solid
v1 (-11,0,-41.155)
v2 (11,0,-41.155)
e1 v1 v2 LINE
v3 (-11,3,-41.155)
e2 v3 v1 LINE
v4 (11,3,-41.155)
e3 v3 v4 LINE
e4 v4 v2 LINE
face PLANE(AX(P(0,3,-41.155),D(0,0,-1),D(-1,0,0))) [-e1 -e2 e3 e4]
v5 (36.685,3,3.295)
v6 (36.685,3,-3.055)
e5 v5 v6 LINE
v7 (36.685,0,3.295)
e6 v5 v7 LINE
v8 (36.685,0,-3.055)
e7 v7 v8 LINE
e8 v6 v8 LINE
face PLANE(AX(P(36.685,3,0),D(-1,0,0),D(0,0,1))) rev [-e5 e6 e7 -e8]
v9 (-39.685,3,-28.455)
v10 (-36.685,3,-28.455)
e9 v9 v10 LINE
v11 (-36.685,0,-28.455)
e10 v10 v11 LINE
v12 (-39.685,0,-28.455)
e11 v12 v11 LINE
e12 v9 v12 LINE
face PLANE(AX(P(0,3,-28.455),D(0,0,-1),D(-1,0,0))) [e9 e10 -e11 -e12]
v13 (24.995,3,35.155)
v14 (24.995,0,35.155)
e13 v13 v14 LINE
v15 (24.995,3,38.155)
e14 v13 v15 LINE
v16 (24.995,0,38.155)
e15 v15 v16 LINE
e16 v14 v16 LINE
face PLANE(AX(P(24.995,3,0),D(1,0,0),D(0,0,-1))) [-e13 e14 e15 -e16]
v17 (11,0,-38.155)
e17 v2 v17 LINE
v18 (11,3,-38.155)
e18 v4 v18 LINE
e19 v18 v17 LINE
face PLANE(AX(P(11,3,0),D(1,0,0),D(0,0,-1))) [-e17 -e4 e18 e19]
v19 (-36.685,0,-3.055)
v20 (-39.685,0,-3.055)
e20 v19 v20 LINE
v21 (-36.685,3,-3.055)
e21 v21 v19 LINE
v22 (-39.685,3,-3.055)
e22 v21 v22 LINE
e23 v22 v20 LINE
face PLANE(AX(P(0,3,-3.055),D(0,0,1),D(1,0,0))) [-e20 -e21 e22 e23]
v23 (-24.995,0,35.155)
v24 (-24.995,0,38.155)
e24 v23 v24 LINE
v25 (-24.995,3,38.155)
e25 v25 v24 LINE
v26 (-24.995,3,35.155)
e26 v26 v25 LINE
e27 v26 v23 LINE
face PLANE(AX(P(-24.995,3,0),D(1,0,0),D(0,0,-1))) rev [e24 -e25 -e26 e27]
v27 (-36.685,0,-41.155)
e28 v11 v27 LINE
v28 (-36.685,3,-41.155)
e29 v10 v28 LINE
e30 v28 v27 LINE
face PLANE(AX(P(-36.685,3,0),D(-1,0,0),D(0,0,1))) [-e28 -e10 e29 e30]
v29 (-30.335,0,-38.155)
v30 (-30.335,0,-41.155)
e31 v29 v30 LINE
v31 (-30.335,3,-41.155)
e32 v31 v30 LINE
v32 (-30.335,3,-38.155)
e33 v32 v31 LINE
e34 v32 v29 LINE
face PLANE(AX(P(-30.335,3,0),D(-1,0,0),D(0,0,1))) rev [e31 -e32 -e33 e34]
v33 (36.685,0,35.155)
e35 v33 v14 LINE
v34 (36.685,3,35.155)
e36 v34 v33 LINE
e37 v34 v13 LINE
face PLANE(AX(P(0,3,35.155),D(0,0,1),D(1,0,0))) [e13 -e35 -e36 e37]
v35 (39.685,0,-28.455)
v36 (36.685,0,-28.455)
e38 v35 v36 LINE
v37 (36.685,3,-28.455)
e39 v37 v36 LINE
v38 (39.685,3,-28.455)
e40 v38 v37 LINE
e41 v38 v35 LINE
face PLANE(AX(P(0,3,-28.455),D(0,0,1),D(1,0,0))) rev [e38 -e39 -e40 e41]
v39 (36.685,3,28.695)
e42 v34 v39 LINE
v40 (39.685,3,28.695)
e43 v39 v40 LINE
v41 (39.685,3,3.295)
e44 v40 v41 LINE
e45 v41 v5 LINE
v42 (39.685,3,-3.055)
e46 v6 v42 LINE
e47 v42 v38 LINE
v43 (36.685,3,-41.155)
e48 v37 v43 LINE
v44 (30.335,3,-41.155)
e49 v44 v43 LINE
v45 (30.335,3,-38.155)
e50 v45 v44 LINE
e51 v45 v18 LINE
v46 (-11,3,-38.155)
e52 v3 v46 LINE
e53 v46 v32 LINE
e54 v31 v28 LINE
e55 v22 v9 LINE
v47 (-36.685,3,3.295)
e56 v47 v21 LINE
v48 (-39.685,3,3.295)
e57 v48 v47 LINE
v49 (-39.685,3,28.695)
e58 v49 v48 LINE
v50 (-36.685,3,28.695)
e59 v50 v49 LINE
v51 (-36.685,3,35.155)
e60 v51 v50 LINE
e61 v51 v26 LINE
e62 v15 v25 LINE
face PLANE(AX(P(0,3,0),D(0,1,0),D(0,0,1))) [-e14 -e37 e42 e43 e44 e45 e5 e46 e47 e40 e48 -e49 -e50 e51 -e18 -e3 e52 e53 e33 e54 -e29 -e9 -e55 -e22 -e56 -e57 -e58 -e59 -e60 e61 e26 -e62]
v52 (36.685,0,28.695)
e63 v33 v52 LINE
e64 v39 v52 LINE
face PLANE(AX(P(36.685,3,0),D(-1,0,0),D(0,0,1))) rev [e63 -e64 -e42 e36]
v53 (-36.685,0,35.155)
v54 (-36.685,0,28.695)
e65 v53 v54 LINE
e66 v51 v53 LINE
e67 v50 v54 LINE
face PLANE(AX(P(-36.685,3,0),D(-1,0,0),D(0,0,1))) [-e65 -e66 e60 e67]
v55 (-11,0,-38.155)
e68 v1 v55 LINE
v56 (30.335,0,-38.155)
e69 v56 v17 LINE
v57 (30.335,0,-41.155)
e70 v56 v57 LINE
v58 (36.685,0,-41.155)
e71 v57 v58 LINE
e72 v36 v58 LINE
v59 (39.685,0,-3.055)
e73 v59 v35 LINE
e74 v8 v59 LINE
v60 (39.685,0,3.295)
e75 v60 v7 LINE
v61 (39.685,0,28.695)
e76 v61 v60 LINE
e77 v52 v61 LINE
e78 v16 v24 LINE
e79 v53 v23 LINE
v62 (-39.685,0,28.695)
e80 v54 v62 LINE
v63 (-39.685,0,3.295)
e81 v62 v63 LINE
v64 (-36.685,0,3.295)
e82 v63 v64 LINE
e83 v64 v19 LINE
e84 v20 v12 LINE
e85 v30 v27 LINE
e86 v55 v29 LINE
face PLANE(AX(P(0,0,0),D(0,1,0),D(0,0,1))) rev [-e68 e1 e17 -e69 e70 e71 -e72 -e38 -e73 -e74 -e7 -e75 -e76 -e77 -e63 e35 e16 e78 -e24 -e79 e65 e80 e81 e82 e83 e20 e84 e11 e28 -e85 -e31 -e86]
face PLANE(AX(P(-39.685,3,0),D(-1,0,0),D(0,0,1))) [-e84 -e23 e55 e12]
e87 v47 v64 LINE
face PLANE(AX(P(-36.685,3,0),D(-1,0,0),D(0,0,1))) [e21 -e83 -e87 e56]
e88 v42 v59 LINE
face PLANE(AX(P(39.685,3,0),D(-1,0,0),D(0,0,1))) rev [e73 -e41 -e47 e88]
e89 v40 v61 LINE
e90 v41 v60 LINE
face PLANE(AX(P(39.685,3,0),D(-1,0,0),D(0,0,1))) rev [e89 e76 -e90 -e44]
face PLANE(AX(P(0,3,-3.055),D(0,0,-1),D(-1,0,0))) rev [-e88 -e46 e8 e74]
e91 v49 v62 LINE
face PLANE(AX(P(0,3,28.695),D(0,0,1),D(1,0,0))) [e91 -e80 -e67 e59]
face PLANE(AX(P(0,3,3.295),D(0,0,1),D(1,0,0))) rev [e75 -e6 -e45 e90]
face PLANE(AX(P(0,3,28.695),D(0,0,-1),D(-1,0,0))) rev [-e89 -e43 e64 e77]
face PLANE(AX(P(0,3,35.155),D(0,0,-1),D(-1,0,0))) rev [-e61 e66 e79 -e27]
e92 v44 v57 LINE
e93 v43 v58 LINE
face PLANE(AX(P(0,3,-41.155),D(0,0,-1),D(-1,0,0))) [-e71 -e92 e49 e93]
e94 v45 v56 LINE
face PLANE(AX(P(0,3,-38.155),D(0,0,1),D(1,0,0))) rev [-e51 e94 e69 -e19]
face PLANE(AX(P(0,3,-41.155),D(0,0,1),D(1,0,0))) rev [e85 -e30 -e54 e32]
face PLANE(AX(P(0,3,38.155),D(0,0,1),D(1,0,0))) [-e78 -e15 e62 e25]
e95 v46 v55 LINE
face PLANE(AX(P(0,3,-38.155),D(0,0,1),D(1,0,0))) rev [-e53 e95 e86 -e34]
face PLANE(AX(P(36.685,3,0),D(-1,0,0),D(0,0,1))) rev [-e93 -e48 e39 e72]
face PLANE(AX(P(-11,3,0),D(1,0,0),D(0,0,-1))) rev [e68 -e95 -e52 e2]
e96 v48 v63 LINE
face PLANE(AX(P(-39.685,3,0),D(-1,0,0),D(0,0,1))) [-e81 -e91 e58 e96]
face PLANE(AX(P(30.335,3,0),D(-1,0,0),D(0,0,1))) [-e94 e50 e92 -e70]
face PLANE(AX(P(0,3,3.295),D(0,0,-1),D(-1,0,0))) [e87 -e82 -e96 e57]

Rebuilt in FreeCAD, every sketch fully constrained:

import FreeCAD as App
import Part
import Sketcher

V = App.Vector
Q = App.Units.Quantity

doc = App.newDocument("Part")
body = doc.addObject("PartDesign::Body", "Body")

sketch1 = body.newObject("Sketcher::SketchObject", "Sketch")
sketch1.AttachmentSupport = (doc.getObject("XZ_Plane"), [""])
sketch1.MapMode = "FlatFace"
sketch1.addGeometry([
    Part.LineSegment(V(-24.995, 38.155, 0), V(24.995, 38.155, 0)),
    Part.LineSegment(V(24.995, 38.155, 0), V(24.995, 35.155, 0)),
    Part.LineSegment(V(24.995, 35.155, 0), V(36.685, 35.155, 0)),
    Part.LineSegment(V(36.685, 35.155, 0), V(36.685, 28.695, 0)),
    Part.LineSegment(V(36.685, 28.695, 0), V(39.685, 28.695, 0)),
    Part.LineSegment(V(39.685, 28.695, 0), V(39.685, 3.295, 0)),
    Part.LineSegment(V(39.685, 3.295, 0), V(36.685, 3.295, 0)),
    Part.LineSegment(V(36.685, 3.295, 0), V(36.685, -3.055, 0)),
    Part.LineSegment(V(36.685, -3.055, 0), V(39.685, -3.055, 0)),
    Part.LineSegment(V(39.685, -3.055, 0), V(39.685, -28.455, 0)),
    Part.LineSegment(V(39.685, -28.455, 0), V(36.685, -28.455, 0)),
    Part.LineSegment(V(36.685, -28.455, 0), V(36.685, -41.155, 0)),
    Part.LineSegment(V(36.685, -41.155, 0), V(30.335, -41.155, 0)),
    Part.LineSegment(V(30.335, -41.155, 0), V(30.335, -38.155, 0)),
    Part.LineSegment(V(30.335, -38.155, 0), V(11, -38.155, 0)),
    Part.LineSegment(V(11, -38.155, 0), V(11, -41.155, 0)),
    Part.LineSegment(V(11, -41.155, 0), V(-11, -41.155, 0)),
    Part.LineSegment(V(-11, -41.155, 0), V(-11, -38.155, 0)),
    Part.LineSegment(V(-11, -38.155, 0), V(-30.335, -38.155, 0)),
    Part.LineSegment(V(-30.335, -38.155, 0), V(-30.335, -41.155, 0)),
    Part.LineSegment(V(-30.335, -41.155, 0), V(-36.685, -41.155, 0)),
    Part.LineSegment(V(-36.685, -41.155, 0), V(-36.685, -28.455, 0)),
    Part.LineSegment(V(-36.685, -28.455, 0), V(-39.685, -28.455, 0)),
    Part.LineSegment(V(-39.685, -28.455, 0), V(-39.685, -3.055, 0)),
    Part.LineSegment(V(-39.685, -3.055, 0), V(-36.685, -3.055, 0)),
    Part.LineSegment(V(-36.685, -3.055, 0), V(-36.685, 3.295, 0)),
    Part.LineSegment(V(-36.685, 3.295, 0), V(-39.685, 3.295, 0)),
    Part.LineSegment(V(-39.685, 3.295, 0), V(-39.685, 28.695, 0)),
    Part.LineSegment(V(-39.685, 28.695, 0), V(-36.685, 28.695, 0)),
    Part.LineSegment(V(-36.685, 28.695, 0), V(-36.685, 35.155, 0)),
    Part.LineSegment(V(-36.685, 35.155, 0), V(-24.995, 35.155, 0)),
    Part.LineSegment(V(-24.995, 35.155, 0), V(-24.995, 38.155, 0)),
], False)
sketch1.addConstraint([
    Sketcher.Constraint("Coincident", 0, 2, 1, 1),
    Sketcher.Constraint("Coincident", 1, 2, 2, 1),
    Sketcher.Constraint("Coincident", 2, 2, 3, 1),
    Sketcher.Constraint("Coincident", 3, 2, 4, 1),
    Sketcher.Constraint("Coincident", 4, 2, 5, 1),
    Sketcher.Constraint("Coincident", 5, 2, 6, 1),
    Sketcher.Constraint("Coincident", 6, 2, 7, 1),
    Sketcher.Constraint("Coincident", 7, 2, 8, 1),
    Sketcher.Constraint("Coincident", 8, 2, 9, 1),
    Sketcher.Constraint("Coincident", 9, 2, 10, 1),
    Sketcher.Constraint("Coincident", 10, 2, 11, 1),
    Sketcher.Constraint("Coincident", 11, 2, 12, 1),
    Sketcher.Constraint("Coincident", 12, 2, 13, 1),
    Sketcher.Constraint("Coincident", 13, 2, 14, 1),
    Sketcher.Constraint("Coincident", 14, 2, 15, 1),
    Sketcher.Constraint("Coincident", 15, 2, 16, 1),
    Sketcher.Constraint("Coincident", 16, 2, 17, 1),
    Sketcher.Constraint("Coincident", 17, 2, 18, 1),
    Sketcher.Constraint("Coincident", 18, 2, 19, 1),
    Sketcher.Constraint("Coincident", 19, 2, 20, 1),
    Sketcher.Constraint("Coincident", 20, 2, 21, 1),
    Sketcher.Constraint("Coincident", 21, 2, 22, 1),
    Sketcher.Constraint("Coincident", 22, 2, 23, 1),
    Sketcher.Constraint("Coincident", 23, 2, 24, 1),
    Sketcher.Constraint("Coincident", 24, 2, 25, 1),
    Sketcher.Constraint("Coincident", 25, 2, 26, 1),
    Sketcher.Constraint("Coincident", 26, 2, 27, 1),
    Sketcher.Constraint("Coincident", 27, 2, 28, 1),
    Sketcher.Constraint("Coincident", 28, 2, 29, 1),
    Sketcher.Constraint("Coincident", 29, 2, 30, 1),
    Sketcher.Constraint("Coincident", 30, 2, 31, 1),
    Sketcher.Constraint("Coincident", 31, 2, 0, 1),
    Sketcher.Constraint("Horizontal", 0),
    Sketcher.Constraint("Vertical", 1),
    Sketcher.Constraint("Horizontal", 2),
    Sketcher.Constraint("Vertical", 3),
    Sketcher.Constraint("Horizontal", 4),
    Sketcher.Constraint("Vertical", 5),
    Sketcher.Constraint("Horizontal", 6),
    Sketcher.Constraint("Vertical", 7),
    Sketcher.Constraint("Horizontal", 8),
    Sketcher.Constraint("Vertical", 9),
    Sketcher.Constraint("Horizontal", 10),
    Sketcher.Constraint("Vertical", 11),
    Sketcher.Constraint("Horizontal", 12),
    Sketcher.Constraint("Vertical", 13),
    Sketcher.Constraint("Horizontal", 14),
    Sketcher.Constraint("Vertical", 15),
    Sketcher.Constraint("Horizontal", 16),
    Sketcher.Constraint("Vertical", 17),
    Sketcher.Constraint("Horizontal", 18),
    Sketcher.Constraint("Vertical", 19),
    Sketcher.Constraint("Horizontal", 20),
    Sketcher.Constraint("Vertical", 21),
    Sketcher.Constraint("Horizontal", 22),
    Sketcher.Constraint("Vertical", 23),
    Sketcher.Constraint("Horizontal", 24),
    Sketcher.Constraint("Vertical", 25),
    Sketcher.Constraint("Horizontal", 26),
    Sketcher.Constraint("Vertical", 27),
    Sketcher.Constraint("Horizontal", 28),
    Sketcher.Constraint("Vertical", 29),
    Sketcher.Constraint("Horizontal", 30),
    Sketcher.Constraint("Vertical", 31),
    Sketcher.Constraint("Symmetric", 14, 2, 17, 2, -2),
    Sketcher.Constraint("Symmetric", 12, 2, 19, 2, -2),
    Sketcher.Constraint("Symmetric", 10, 2, 21, 2, -2),
    Sketcher.Constraint("Symmetric", 8, 2, 23, 2, -2),
    Sketcher.Constraint("Symmetric", 6, 2, 25, 2, -2),
    Sketcher.Constraint("Symmetric", 4, 2, 27, 2, -2),
    Sketcher.Constraint("Symmetric", 2, 2, 29, 2, -2),
    Sketcher.Constraint("Horizontal", 12, 2, 15, 2),
    Sketcher.Constraint("Vertical", 3, 2, 6, 2),
    Sketcher.Constraint("Vertical", 5, 2, 8, 2),
    Sketcher.Constraint("Vertical", 7, 2, 10, 2),
    Sketcher.Constraint("Equal", 2, 30),
    Sketcher.Constraint("Equal", 28, 1),
    Sketcher.Constraint("Equal", 20, 7),
    Sketcher.Constraint("Equal", 5, 9),
    Sketcher.Constraint("Equal", 1, 13),
    Sketcher.Constraint("DistanceY", 5, 2, 5, 1, Q("1 in")),
    Sketcher.Constraint("DistanceY", 11, 2, 11, 1, Q("0.5 in")),
    Sketcher.Constraint("DistanceX", 12, 2, 12, 1, Q("0.25 in")),
    Sketcher.Constraint("DistanceX", 0, 1, 0, 2, Q("49.99 mm")),
    Sketcher.Constraint("DistanceX", 2, 1, 2, 2, Q("11.69 mm")),
    Sketcher.Constraint("DistanceX", 4, 1, 4, 2, Q("3 mm")),
    Sketcher.Constraint("DistanceX", 14, 2, 14, 1, Q("19.335 mm")),
    Sketcher.Constraint("DistanceY", 3, 2, 3, 1, Q("6.46 mm")),
    Sketcher.Constraint("DistanceY", -1, 1, 0, 2, Q("38.155 mm")),
])
pad1 = body.newObject("PartDesign::Pad", "Pad")
pad1.Profile = sketch1
pad1.Length = 3
pad1.Reversed = True

doc.recompute()
